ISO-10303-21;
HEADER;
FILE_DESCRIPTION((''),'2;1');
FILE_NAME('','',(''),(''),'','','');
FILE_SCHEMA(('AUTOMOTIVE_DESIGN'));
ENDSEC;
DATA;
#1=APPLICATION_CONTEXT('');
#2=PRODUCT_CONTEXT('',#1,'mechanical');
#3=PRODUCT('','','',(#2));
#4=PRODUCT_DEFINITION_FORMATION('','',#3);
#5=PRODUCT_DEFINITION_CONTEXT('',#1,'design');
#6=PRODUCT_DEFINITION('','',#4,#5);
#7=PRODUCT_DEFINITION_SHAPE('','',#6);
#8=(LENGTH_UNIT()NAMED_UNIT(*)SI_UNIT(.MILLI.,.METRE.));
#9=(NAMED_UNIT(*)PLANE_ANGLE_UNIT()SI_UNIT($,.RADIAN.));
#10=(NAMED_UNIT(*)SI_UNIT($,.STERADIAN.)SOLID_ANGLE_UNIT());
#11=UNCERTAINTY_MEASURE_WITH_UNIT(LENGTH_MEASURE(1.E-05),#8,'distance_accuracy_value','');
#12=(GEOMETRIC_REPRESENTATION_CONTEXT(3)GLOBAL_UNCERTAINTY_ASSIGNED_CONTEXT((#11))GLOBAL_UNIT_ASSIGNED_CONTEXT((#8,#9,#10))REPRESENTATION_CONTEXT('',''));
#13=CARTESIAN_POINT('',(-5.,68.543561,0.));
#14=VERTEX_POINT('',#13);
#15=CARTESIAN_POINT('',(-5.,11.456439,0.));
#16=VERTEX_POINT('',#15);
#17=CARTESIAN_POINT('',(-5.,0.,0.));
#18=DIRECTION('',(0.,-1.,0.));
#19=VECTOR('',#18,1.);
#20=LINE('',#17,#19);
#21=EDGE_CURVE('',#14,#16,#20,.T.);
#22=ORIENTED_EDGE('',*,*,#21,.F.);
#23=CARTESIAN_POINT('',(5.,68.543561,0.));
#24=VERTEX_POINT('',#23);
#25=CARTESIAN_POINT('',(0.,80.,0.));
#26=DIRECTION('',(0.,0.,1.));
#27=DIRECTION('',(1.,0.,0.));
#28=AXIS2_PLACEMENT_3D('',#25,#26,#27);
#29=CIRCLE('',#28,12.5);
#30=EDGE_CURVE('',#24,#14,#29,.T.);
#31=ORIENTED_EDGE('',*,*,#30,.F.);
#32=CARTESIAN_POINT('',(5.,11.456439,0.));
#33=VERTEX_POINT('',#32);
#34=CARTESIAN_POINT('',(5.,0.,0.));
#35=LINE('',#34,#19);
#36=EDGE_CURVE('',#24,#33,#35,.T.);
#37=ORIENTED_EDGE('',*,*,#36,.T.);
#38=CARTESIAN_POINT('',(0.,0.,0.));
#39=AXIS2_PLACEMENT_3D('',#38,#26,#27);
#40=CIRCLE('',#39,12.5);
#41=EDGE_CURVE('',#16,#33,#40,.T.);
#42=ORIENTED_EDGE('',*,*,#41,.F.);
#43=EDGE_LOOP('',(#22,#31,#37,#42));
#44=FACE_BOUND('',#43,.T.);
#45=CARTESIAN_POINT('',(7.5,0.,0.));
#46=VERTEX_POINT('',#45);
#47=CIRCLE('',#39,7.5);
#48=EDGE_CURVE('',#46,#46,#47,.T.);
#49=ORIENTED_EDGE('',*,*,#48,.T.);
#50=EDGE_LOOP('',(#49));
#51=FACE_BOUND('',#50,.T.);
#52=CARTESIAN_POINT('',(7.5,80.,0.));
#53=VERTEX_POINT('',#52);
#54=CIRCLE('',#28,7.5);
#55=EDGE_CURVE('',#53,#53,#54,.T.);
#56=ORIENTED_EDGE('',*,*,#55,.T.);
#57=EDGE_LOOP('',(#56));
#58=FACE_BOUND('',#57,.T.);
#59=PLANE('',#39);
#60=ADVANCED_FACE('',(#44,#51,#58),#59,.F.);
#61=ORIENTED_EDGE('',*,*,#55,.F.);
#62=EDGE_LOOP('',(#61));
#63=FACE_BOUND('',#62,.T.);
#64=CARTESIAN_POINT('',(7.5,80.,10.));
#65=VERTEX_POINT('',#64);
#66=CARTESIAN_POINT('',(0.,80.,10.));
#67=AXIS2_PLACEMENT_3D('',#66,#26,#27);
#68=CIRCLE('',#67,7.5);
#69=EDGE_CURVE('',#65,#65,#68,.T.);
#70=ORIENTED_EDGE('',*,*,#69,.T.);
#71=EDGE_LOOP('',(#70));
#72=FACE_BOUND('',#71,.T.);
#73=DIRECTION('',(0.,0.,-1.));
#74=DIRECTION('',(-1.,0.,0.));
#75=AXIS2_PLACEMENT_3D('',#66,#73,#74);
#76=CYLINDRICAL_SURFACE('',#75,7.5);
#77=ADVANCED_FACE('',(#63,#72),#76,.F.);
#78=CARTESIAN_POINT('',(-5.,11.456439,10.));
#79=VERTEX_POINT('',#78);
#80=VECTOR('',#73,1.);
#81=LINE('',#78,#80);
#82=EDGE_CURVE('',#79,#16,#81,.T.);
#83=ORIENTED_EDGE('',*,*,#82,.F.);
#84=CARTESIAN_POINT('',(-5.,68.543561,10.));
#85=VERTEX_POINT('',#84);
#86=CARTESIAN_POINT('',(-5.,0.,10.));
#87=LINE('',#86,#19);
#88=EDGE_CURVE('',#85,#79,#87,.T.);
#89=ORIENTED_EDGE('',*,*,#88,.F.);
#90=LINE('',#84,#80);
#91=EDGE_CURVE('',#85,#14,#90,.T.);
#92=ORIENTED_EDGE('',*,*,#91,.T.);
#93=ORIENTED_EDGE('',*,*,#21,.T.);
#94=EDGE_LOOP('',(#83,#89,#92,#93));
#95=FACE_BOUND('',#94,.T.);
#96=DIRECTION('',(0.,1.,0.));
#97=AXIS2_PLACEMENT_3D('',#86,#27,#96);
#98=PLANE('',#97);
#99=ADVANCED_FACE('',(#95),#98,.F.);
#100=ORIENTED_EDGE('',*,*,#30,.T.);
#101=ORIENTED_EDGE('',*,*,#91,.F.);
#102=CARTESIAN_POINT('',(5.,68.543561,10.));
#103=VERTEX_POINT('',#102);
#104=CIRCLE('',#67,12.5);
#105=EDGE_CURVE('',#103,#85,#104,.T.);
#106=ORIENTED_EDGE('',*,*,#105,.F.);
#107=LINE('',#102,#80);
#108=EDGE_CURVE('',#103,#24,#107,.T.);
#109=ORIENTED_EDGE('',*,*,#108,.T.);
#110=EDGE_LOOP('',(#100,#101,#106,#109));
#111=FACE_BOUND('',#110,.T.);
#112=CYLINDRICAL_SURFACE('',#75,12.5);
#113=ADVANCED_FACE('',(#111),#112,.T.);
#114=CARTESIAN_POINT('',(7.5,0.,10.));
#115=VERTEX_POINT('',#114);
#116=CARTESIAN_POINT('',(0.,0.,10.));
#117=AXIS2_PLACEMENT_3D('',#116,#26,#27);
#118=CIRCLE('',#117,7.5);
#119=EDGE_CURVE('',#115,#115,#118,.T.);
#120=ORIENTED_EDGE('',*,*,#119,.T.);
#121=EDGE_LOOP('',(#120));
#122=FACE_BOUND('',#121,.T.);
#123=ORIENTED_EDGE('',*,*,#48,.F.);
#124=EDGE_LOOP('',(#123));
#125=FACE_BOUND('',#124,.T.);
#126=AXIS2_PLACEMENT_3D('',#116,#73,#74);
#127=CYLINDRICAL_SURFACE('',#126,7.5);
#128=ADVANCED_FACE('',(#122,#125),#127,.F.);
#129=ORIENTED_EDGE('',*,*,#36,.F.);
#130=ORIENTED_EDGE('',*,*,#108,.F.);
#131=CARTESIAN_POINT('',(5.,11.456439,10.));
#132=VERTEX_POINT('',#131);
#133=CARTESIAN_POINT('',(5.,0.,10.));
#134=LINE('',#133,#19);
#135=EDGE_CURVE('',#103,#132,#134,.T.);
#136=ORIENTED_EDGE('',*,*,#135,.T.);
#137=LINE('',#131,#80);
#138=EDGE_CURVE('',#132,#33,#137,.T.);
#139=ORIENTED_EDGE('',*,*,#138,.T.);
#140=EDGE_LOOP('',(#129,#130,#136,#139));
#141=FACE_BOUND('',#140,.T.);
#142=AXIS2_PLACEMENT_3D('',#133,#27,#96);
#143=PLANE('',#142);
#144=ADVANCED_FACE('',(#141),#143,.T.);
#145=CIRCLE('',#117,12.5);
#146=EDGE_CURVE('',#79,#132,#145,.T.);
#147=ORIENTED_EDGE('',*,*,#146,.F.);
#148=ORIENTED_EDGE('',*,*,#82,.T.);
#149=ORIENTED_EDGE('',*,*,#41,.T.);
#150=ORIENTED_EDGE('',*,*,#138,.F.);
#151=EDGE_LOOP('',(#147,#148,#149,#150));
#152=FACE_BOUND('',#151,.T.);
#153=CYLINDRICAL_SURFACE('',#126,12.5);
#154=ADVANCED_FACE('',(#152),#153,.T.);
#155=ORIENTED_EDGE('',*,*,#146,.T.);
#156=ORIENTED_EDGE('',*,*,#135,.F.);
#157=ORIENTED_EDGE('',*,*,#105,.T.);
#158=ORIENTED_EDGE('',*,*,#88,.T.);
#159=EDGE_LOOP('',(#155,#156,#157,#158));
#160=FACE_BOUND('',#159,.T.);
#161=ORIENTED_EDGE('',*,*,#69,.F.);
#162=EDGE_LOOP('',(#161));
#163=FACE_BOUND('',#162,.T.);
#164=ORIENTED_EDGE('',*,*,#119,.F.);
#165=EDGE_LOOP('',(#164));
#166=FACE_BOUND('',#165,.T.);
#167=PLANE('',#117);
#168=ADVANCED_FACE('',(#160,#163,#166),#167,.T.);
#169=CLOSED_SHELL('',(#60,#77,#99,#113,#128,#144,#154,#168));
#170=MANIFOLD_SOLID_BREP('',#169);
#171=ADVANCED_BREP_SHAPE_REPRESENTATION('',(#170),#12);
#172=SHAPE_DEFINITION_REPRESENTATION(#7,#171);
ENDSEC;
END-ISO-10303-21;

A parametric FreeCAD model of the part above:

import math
import FreeCAD as App
import Part
import Sketcher
from FreeCAD import Vector

doc = App.newDocument("Part")
body = doc.addObject("PartDesign::Body", "Body")

# Sketch on XY plane
sketch1 = body.newObject("Sketcher::SketchObject", "Sketch")
sketch1.AttachmentSupport = (doc.getObject("XY_Plane"), [""])
sketch1.MapMode = "FlatFace"
sketch1.addGeometry([
    Part.ArcOfCircle(Part.Circle(Vector(0, 0, 0), Vector(0, 0, 1), 12), math.radians(114), math.radians(426)),  # 0
    Part.LineSegment(Vector(5, 11, 0), Vector(5, 69, 0)),  # 1
    Part.ArcOfCircle(Part.Circle(Vector(0, 80, 0), Vector(0, 0, 1), 12), math.radians(-66), math.radians(246)),  # 2
    Part.LineSegment(Vector(-5, 69, 0), Vector(-5, 11, 0)),  # 3
    Part.Circle(Vector(0, 0, 0), Vector(0, 0, 1), 8),  # 4
    Part.Circle(Vector(0, 80, 0), Vector(0, 0, 1), 8),  # 5
], False)
sketch1.addConstraint([
    Sketcher.Constraint("Coincident", 0, 2, 1, 1),
    Sketcher.Constraint("Coincident", 1, 2, 2, 1),
    Sketcher.Constraint("Coincident", 2, 2, 3, 1),
    Sketcher.Constraint("Coincident", 3, 2, 0, 1),
    Sketcher.Constraint("Vertical", 1),
    Sketcher.Constraint("Vertical", 3),
    Sketcher.Constraint("Coincident", 0, 3, -1, 1),
    Sketcher.Constraint("Coincident", 4, 3, -1, 1),
    Sketcher.Constraint("Coincident", 5, 3, 2, 3),
    Sketcher.Constraint("Equal", 0, 2),
    Sketcher.Constraint("Equal", 4, 5),
    Sketcher.Constraint("Symmetric", 1, 2, 2, 2, -2),
    Sketcher.Constraint("Diameter", 4, 15.0),
    Sketcher.Constraint("Radius", 0, 12.5),
    Sketcher.Constraint("DistanceY", -1, 1, 2, 3, 80.0),
    Sketcher.Constraint("DistanceX", -1, 1, 0, 2, 5.0),
])
pad1 = body.newObject("PartDesign::Pad", "Pad")
pad1.Profile = sketch1
pad1.Length = 10

doc.recompute()
